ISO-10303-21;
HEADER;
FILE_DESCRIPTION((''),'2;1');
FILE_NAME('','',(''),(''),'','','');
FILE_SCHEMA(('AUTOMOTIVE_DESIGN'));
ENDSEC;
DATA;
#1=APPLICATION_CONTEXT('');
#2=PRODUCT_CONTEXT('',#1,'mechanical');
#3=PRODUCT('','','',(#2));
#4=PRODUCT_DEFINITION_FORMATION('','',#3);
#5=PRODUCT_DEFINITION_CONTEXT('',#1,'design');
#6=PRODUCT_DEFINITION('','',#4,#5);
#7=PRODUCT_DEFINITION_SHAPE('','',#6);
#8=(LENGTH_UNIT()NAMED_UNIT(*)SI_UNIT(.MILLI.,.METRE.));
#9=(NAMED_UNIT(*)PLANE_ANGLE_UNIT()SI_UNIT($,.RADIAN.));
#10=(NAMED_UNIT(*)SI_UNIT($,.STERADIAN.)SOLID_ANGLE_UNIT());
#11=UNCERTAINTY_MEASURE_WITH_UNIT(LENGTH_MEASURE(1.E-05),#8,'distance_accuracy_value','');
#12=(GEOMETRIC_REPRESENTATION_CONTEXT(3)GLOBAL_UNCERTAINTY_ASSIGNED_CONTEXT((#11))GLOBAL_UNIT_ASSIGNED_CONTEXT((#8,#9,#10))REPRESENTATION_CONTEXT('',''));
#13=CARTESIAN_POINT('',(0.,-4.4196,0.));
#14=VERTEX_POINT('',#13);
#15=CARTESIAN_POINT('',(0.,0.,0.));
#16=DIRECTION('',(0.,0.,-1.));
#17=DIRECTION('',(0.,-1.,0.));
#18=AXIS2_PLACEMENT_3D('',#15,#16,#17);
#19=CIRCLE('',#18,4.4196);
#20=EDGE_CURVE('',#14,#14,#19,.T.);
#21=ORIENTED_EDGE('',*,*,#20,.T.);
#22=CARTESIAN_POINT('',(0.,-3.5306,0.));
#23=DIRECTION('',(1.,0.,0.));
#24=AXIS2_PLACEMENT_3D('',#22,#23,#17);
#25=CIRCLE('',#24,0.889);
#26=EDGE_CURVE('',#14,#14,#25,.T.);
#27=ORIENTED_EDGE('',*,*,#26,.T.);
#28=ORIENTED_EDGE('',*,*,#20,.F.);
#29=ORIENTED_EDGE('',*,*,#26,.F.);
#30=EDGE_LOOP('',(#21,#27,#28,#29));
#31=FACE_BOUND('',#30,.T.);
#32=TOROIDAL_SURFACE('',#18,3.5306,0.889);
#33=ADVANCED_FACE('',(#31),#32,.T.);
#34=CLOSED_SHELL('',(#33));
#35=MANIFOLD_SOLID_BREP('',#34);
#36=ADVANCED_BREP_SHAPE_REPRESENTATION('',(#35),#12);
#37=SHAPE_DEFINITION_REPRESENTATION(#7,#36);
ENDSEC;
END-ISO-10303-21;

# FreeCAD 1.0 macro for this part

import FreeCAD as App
import Part
import Sketcher
from FreeCAD import Vector
Q = App.Units.Quantity

doc = App.newDocument("Part")
params = doc.addObject("Spreadsheet::Sheet", "Params")
for row, (alias, value) in enumerate([
    ("sketch1_diameter", "0.07 in"),
    ("revolution_angle", "360 deg"),
], start=1):
    params.set(f"A{row}", alias)
    params.set(f"B{row}", "=" + value)
    params.setAlias(f"B{row}", alias)

body = doc.addObject("PartDesign::Body", "Body")

# Sketch on YZ plane
sketch1 = body.newObject("Sketcher::SketchObject", "Sketch")
sketch1.AttachmentSupport = (doc.getObject("YZ_Plane"), [""])
sketch1.MapMode = "FlatFace"
sketch1.addGeometry(Part.Circle(Vector(-3.5, 0, 0), Vector(0, 0, 1), 0.9), False)
sketch1.addConstraint(Sketcher.Constraint("PointOnObject", 0, 3, -1))
sketch1.addConstraint(Sketcher.Constraint("Diameter", 0, Q("0.07 in")))
sketch1.addConstraint(Sketcher.Constraint("DistanceX", 0, 3, -1, 1, Q("0.139 in")))
sketch1.setExpression("Constraints[1]", "Params.sketch1_diameter")
revolution = body.newObject("PartDesign::Revolution", "Revolution")
revolution.Profile = sketch1
revolution.ReferenceAxis = (sketch1, ["V_Axis"])
revolution.setExpression("Angle", "Params.revolution_angle")

doc.recompute()
